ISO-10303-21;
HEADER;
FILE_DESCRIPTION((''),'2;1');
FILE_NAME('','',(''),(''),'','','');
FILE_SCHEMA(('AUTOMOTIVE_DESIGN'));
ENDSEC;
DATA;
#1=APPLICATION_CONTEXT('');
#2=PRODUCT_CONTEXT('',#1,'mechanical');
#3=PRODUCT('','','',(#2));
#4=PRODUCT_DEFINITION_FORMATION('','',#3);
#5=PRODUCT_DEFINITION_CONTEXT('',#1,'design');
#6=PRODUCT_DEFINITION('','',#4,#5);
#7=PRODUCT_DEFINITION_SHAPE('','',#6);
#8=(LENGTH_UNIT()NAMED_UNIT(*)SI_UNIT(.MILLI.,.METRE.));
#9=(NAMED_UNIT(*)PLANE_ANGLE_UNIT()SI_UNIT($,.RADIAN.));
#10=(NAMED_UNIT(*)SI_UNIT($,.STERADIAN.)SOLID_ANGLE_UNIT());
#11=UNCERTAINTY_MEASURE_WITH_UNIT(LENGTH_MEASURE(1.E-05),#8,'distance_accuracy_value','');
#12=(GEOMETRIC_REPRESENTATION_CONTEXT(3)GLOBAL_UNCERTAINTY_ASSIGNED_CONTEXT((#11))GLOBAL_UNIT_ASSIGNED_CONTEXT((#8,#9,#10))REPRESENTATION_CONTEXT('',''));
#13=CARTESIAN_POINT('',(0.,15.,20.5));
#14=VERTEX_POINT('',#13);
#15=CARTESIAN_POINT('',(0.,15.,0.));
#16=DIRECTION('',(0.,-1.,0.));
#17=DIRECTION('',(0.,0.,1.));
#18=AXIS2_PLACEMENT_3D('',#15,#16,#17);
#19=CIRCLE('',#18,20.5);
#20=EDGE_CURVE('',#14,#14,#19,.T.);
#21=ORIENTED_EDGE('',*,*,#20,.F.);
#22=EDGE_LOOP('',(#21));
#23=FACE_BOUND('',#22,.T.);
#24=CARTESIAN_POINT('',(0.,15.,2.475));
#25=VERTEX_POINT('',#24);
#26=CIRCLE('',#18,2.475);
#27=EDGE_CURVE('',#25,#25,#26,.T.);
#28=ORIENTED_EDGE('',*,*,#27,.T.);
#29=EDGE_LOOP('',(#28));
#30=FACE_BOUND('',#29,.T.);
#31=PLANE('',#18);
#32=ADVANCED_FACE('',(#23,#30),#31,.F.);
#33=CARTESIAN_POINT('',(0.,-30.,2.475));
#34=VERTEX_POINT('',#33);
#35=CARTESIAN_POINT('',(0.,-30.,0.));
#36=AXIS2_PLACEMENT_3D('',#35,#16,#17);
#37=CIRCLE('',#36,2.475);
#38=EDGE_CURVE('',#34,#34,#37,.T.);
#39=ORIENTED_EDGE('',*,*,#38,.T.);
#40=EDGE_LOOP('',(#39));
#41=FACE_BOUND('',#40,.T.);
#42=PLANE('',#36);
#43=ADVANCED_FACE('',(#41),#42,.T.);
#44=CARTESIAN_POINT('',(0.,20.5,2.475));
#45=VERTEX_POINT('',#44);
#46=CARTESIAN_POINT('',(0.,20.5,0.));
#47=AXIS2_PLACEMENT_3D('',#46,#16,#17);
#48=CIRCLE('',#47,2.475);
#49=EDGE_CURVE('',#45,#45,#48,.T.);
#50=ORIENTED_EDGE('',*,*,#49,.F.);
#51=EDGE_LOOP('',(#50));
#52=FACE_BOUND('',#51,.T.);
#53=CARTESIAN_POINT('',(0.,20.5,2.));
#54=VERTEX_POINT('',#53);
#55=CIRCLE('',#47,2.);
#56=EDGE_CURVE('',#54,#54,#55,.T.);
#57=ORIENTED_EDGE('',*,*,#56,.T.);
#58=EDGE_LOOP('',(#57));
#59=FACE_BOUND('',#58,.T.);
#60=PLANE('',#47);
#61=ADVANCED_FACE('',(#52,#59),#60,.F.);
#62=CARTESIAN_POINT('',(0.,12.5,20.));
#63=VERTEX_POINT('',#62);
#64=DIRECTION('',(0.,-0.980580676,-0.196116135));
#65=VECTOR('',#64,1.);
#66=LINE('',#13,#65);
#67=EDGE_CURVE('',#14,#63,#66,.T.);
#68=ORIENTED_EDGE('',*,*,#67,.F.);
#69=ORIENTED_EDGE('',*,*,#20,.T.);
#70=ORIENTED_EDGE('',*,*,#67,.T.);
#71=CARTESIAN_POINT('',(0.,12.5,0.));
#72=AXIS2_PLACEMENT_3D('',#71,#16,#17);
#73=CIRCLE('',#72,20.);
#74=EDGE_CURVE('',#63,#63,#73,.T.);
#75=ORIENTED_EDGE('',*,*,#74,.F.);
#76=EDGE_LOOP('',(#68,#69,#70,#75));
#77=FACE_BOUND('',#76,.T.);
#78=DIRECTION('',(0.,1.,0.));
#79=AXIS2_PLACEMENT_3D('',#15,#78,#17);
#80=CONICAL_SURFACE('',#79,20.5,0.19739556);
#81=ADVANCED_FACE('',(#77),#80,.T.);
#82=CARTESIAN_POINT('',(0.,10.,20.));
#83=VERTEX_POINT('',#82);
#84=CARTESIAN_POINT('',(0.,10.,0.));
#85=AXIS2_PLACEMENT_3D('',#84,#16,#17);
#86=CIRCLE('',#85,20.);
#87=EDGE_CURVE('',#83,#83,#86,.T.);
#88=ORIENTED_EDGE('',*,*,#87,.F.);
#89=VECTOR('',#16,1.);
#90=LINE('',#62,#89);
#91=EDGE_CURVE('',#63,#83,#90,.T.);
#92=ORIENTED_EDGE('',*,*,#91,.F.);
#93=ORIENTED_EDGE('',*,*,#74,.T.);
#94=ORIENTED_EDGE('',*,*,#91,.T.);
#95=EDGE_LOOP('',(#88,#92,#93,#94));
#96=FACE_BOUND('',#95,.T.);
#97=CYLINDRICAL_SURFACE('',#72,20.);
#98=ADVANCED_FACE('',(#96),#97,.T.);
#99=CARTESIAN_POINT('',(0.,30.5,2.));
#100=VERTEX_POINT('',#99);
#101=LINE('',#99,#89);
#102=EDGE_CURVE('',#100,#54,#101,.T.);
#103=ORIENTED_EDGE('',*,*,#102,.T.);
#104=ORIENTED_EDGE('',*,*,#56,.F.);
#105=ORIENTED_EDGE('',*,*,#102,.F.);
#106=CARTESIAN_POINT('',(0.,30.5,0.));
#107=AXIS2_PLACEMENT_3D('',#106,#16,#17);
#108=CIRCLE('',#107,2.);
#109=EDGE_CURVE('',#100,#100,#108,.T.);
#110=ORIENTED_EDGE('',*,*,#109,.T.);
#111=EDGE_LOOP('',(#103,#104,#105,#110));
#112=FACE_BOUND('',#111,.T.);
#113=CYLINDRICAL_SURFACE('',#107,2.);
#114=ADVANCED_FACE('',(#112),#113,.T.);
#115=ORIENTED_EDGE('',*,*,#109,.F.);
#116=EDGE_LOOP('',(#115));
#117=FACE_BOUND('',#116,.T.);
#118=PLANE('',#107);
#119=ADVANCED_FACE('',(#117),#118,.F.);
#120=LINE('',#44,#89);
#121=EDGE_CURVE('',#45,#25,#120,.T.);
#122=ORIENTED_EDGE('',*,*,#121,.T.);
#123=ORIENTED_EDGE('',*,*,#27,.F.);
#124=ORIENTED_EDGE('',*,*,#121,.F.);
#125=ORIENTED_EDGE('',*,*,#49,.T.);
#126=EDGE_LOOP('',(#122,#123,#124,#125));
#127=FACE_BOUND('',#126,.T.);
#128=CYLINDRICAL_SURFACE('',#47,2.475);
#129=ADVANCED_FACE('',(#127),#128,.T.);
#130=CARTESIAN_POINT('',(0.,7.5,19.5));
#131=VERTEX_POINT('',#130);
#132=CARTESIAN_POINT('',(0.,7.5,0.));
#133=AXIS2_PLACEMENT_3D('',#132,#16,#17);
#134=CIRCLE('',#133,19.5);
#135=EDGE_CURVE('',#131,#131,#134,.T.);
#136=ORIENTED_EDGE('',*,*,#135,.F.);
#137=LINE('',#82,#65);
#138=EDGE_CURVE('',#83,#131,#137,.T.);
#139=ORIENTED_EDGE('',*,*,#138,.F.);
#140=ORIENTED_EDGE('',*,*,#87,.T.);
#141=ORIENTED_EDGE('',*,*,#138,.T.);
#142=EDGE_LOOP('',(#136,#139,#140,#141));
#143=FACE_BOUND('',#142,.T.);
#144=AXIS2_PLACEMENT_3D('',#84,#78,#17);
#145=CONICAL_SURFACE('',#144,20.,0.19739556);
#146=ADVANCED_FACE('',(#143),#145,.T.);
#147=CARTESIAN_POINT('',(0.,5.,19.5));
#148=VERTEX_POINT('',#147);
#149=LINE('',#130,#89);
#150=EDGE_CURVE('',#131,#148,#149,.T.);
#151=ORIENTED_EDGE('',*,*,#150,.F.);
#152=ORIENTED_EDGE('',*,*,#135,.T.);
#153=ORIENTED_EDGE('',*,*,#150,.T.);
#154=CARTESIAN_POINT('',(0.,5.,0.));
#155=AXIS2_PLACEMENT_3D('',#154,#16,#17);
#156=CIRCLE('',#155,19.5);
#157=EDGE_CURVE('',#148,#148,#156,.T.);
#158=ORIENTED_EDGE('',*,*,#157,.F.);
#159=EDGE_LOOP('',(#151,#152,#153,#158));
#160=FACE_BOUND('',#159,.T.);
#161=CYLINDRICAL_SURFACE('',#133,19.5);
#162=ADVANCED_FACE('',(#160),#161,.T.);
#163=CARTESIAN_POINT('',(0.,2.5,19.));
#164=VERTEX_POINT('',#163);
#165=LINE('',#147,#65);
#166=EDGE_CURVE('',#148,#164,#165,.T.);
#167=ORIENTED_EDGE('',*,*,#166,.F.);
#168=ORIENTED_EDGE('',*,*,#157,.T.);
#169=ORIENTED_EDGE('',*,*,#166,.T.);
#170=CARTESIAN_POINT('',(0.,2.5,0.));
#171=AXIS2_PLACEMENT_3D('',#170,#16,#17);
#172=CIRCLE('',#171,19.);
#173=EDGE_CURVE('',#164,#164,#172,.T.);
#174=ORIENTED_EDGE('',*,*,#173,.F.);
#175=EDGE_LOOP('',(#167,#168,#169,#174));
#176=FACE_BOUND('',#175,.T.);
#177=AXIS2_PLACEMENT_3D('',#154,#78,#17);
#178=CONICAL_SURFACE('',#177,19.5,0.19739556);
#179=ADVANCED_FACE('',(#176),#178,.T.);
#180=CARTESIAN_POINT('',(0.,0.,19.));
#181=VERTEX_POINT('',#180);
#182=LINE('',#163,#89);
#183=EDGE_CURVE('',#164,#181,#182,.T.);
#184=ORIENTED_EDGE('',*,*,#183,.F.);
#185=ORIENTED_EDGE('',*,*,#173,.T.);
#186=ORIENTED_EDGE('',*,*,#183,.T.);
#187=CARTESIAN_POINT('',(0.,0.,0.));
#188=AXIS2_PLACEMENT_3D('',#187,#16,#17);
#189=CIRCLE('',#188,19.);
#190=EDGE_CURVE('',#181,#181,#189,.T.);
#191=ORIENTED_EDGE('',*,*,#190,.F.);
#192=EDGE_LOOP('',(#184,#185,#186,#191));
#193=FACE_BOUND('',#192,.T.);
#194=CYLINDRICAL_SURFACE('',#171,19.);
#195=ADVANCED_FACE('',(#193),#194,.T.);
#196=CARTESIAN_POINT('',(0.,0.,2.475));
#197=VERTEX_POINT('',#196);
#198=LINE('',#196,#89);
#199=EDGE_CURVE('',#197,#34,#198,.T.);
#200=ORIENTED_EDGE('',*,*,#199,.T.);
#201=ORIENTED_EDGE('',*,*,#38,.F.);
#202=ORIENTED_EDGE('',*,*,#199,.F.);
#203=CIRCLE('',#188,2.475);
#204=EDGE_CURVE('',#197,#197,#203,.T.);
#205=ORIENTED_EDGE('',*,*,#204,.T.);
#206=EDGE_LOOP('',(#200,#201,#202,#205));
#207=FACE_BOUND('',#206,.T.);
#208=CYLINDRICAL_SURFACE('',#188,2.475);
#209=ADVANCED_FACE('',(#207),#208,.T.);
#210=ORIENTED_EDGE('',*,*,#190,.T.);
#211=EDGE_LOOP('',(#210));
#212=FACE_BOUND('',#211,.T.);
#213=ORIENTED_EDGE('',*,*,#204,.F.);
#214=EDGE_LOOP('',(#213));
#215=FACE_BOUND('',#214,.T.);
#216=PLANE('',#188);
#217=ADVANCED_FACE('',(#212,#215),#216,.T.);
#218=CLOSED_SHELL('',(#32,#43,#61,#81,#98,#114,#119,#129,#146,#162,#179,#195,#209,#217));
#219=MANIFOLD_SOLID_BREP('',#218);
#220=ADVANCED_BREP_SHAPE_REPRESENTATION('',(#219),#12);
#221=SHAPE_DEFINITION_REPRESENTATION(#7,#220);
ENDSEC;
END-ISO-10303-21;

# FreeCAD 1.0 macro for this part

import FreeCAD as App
import Part
import Sketcher

doc = App.newDocument("Part")
body = doc.addObject("PartDesign::Body", "Body")

sketch1 = doc.addObject("Sketcher::SketchObject", "Sketch")
body.addObject(sketch1)
sketch1.AttachmentSupport = (doc.YZ_Plane, [""])
sketch1.MapMode = "FlatFace"
sketch1.addGeometry([
    Part.LineSegment(App.Vector(-30, 2.48, 0), App.Vector(-30, 0, 0)),
    Part.LineSegment(App.Vector(-30, 0, 0), App.Vector(30.5, 0, 0)),
    Part.LineSegment(App.Vector(30.5, 0, 0), App.Vector(30.5, 2, 0)),
    Part.LineSegment(App.Vector(30.5, 2, 0), App.Vector(20.5, 2, 0)),
    Part.LineSegment(App.Vector(20.5, 2, 0), App.Vector(20.5, 2.48, 0)),
    Part.LineSegment(App.Vector(20.5, 2.48, 0), App.Vector(15, 2.48, 0)),
    Part.LineSegment(App.Vector(15, 2.48, 0), App.Vector(15, 20.5, 0)),
    Part.LineSegment(App.Vector(15, 20.5, 0), App.Vector(12.5, 20, 0)),
    Part.LineSegment(App.Vector(12.5, 20, 0), App.Vector(10, 20, 0)),
    Part.LineSegment(App.Vector(10, 20, 0), App.Vector(7.5, 19.5, 0)),
    Part.LineSegment(App.Vector(7.5, 19.5, 0), App.Vector(5, 19.5, 0)),
    Part.LineSegment(App.Vector(5, 19.5, 0), App.Vector(2.5, 19, 0)),
    Part.LineSegment(App.Vector(2.5, 19, 0), App.Vector(0, 19, 0)),
    Part.LineSegment(App.Vector(0, 19, 0), App.Vector(0, 2.48, 0)),
    Part.LineSegment(App.Vector(0, 2.48, 0), App.Vector(-30, 2.48, 0)),
], False)
sketch1.addConstraint([
    Sketcher.Constraint("Coincident", 0, 2, 1, 1),
    Sketcher.Constraint("Coincident", 1, 2, 2, 1),
    Sketcher.Constraint("Coincident", 2, 2, 3, 1),
    Sketcher.Constraint("Coincident", 3, 2, 4, 1),
    Sketcher.Constraint("Coincident", 4, 2, 5, 1),
    Sketcher.Constraint("Coincident", 5, 2, 6, 1),
    Sketcher.Constraint("Coincident", 6, 2, 7, 1),
    Sketcher.Constraint("Coincident", 7, 2, 8, 1),
    Sketcher.Constraint("Coincident", 8, 2, 9, 1),
    Sketcher.Constraint("Coincident", 9, 2, 10, 1),
    Sketcher.Constraint("Coincident", 10, 2, 11, 1),
    Sketcher.Constraint("Coincident", 11, 2, 12, 1),
    Sketcher.Constraint("Coincident", 12, 2, 13, 1),
    Sketcher.Constraint("Coincident", 13, 2, 14, 1),
    Sketcher.Constraint("Coincident", 14, 2, 0, 1),
    Sketcher.Constraint("Vertical", 0),
    Sketcher.Constraint("Horizontal", 1),
    Sketcher.Constraint("Vertical", 2),
    Sketcher.Constraint("Horizontal", 3),
    Sketcher.Constraint("Vertical", 4),
    Sketcher.Constraint("Horizontal", 5),
    Sketcher.Constraint("Vertical", 6),
    Sketcher.Constraint("Horizontal", 8),
    Sketcher.Constraint("Horizontal", 10),
    Sketcher.Constraint("Horizontal", 12),
    Sketcher.Constraint("Vertical", 13),
    Sketcher.Constraint("Horizontal", 14),
    Sketcher.Constraint("PointOnObject", 0, 2, -1),
    Sketcher.Constraint("PointOnObject", 12, 2, -2),
    Sketcher.Constraint("Parallel", 7, 9),
    Sketcher.Constraint("Parallel", 9, 11),
    Sketcher.Constraint("Horizontal", 5, 2, 13, 2),
    Sketcher.Constraint("Equal", 8, 10),
    Sketcher.Constraint("Equal", 10, 12),
    Sketcher.Constraint("Equal", 7, 9),
    Sketcher.Constraint("Equal", 9, 11),
    Sketcher.Constraint("DistanceX", 3, 2, 3, 1, 10.0),
    Sketcher.Constraint("DistanceX", 14, 2, 14, 1, 30.0),
    Sketcher.Constraint("DistanceY", 2, 1, 2, 2, 2.0),
    Sketcher.Constraint("DistanceX", 1, 1, 1, 2, 60.5),
    Sketcher.Constraint("DistanceX", 5, 2, 5, 1, 5.5),
    Sketcher.Constraint("DistanceX", 8, 2, 8, 1, 2.5),
    Sketcher.Constraint("DistanceY", -1, 1, 7, 2, 20.0),
    Sketcher.Constraint("DistanceY", -1, 1, 11, 2, 19.0),
    Sketcher.Constraint("DistanceY", 0, 2, 0, 1, 2.475),
])
revolution = doc.addObject("PartDesign::Revolution", "Revolution")
body.addObject(revolution)
revolution.Profile = sketch1
revolution.ReferenceAxis = (sketch1, ["H_Axis"])
revolution.Angle = 360

doc.recompute()
